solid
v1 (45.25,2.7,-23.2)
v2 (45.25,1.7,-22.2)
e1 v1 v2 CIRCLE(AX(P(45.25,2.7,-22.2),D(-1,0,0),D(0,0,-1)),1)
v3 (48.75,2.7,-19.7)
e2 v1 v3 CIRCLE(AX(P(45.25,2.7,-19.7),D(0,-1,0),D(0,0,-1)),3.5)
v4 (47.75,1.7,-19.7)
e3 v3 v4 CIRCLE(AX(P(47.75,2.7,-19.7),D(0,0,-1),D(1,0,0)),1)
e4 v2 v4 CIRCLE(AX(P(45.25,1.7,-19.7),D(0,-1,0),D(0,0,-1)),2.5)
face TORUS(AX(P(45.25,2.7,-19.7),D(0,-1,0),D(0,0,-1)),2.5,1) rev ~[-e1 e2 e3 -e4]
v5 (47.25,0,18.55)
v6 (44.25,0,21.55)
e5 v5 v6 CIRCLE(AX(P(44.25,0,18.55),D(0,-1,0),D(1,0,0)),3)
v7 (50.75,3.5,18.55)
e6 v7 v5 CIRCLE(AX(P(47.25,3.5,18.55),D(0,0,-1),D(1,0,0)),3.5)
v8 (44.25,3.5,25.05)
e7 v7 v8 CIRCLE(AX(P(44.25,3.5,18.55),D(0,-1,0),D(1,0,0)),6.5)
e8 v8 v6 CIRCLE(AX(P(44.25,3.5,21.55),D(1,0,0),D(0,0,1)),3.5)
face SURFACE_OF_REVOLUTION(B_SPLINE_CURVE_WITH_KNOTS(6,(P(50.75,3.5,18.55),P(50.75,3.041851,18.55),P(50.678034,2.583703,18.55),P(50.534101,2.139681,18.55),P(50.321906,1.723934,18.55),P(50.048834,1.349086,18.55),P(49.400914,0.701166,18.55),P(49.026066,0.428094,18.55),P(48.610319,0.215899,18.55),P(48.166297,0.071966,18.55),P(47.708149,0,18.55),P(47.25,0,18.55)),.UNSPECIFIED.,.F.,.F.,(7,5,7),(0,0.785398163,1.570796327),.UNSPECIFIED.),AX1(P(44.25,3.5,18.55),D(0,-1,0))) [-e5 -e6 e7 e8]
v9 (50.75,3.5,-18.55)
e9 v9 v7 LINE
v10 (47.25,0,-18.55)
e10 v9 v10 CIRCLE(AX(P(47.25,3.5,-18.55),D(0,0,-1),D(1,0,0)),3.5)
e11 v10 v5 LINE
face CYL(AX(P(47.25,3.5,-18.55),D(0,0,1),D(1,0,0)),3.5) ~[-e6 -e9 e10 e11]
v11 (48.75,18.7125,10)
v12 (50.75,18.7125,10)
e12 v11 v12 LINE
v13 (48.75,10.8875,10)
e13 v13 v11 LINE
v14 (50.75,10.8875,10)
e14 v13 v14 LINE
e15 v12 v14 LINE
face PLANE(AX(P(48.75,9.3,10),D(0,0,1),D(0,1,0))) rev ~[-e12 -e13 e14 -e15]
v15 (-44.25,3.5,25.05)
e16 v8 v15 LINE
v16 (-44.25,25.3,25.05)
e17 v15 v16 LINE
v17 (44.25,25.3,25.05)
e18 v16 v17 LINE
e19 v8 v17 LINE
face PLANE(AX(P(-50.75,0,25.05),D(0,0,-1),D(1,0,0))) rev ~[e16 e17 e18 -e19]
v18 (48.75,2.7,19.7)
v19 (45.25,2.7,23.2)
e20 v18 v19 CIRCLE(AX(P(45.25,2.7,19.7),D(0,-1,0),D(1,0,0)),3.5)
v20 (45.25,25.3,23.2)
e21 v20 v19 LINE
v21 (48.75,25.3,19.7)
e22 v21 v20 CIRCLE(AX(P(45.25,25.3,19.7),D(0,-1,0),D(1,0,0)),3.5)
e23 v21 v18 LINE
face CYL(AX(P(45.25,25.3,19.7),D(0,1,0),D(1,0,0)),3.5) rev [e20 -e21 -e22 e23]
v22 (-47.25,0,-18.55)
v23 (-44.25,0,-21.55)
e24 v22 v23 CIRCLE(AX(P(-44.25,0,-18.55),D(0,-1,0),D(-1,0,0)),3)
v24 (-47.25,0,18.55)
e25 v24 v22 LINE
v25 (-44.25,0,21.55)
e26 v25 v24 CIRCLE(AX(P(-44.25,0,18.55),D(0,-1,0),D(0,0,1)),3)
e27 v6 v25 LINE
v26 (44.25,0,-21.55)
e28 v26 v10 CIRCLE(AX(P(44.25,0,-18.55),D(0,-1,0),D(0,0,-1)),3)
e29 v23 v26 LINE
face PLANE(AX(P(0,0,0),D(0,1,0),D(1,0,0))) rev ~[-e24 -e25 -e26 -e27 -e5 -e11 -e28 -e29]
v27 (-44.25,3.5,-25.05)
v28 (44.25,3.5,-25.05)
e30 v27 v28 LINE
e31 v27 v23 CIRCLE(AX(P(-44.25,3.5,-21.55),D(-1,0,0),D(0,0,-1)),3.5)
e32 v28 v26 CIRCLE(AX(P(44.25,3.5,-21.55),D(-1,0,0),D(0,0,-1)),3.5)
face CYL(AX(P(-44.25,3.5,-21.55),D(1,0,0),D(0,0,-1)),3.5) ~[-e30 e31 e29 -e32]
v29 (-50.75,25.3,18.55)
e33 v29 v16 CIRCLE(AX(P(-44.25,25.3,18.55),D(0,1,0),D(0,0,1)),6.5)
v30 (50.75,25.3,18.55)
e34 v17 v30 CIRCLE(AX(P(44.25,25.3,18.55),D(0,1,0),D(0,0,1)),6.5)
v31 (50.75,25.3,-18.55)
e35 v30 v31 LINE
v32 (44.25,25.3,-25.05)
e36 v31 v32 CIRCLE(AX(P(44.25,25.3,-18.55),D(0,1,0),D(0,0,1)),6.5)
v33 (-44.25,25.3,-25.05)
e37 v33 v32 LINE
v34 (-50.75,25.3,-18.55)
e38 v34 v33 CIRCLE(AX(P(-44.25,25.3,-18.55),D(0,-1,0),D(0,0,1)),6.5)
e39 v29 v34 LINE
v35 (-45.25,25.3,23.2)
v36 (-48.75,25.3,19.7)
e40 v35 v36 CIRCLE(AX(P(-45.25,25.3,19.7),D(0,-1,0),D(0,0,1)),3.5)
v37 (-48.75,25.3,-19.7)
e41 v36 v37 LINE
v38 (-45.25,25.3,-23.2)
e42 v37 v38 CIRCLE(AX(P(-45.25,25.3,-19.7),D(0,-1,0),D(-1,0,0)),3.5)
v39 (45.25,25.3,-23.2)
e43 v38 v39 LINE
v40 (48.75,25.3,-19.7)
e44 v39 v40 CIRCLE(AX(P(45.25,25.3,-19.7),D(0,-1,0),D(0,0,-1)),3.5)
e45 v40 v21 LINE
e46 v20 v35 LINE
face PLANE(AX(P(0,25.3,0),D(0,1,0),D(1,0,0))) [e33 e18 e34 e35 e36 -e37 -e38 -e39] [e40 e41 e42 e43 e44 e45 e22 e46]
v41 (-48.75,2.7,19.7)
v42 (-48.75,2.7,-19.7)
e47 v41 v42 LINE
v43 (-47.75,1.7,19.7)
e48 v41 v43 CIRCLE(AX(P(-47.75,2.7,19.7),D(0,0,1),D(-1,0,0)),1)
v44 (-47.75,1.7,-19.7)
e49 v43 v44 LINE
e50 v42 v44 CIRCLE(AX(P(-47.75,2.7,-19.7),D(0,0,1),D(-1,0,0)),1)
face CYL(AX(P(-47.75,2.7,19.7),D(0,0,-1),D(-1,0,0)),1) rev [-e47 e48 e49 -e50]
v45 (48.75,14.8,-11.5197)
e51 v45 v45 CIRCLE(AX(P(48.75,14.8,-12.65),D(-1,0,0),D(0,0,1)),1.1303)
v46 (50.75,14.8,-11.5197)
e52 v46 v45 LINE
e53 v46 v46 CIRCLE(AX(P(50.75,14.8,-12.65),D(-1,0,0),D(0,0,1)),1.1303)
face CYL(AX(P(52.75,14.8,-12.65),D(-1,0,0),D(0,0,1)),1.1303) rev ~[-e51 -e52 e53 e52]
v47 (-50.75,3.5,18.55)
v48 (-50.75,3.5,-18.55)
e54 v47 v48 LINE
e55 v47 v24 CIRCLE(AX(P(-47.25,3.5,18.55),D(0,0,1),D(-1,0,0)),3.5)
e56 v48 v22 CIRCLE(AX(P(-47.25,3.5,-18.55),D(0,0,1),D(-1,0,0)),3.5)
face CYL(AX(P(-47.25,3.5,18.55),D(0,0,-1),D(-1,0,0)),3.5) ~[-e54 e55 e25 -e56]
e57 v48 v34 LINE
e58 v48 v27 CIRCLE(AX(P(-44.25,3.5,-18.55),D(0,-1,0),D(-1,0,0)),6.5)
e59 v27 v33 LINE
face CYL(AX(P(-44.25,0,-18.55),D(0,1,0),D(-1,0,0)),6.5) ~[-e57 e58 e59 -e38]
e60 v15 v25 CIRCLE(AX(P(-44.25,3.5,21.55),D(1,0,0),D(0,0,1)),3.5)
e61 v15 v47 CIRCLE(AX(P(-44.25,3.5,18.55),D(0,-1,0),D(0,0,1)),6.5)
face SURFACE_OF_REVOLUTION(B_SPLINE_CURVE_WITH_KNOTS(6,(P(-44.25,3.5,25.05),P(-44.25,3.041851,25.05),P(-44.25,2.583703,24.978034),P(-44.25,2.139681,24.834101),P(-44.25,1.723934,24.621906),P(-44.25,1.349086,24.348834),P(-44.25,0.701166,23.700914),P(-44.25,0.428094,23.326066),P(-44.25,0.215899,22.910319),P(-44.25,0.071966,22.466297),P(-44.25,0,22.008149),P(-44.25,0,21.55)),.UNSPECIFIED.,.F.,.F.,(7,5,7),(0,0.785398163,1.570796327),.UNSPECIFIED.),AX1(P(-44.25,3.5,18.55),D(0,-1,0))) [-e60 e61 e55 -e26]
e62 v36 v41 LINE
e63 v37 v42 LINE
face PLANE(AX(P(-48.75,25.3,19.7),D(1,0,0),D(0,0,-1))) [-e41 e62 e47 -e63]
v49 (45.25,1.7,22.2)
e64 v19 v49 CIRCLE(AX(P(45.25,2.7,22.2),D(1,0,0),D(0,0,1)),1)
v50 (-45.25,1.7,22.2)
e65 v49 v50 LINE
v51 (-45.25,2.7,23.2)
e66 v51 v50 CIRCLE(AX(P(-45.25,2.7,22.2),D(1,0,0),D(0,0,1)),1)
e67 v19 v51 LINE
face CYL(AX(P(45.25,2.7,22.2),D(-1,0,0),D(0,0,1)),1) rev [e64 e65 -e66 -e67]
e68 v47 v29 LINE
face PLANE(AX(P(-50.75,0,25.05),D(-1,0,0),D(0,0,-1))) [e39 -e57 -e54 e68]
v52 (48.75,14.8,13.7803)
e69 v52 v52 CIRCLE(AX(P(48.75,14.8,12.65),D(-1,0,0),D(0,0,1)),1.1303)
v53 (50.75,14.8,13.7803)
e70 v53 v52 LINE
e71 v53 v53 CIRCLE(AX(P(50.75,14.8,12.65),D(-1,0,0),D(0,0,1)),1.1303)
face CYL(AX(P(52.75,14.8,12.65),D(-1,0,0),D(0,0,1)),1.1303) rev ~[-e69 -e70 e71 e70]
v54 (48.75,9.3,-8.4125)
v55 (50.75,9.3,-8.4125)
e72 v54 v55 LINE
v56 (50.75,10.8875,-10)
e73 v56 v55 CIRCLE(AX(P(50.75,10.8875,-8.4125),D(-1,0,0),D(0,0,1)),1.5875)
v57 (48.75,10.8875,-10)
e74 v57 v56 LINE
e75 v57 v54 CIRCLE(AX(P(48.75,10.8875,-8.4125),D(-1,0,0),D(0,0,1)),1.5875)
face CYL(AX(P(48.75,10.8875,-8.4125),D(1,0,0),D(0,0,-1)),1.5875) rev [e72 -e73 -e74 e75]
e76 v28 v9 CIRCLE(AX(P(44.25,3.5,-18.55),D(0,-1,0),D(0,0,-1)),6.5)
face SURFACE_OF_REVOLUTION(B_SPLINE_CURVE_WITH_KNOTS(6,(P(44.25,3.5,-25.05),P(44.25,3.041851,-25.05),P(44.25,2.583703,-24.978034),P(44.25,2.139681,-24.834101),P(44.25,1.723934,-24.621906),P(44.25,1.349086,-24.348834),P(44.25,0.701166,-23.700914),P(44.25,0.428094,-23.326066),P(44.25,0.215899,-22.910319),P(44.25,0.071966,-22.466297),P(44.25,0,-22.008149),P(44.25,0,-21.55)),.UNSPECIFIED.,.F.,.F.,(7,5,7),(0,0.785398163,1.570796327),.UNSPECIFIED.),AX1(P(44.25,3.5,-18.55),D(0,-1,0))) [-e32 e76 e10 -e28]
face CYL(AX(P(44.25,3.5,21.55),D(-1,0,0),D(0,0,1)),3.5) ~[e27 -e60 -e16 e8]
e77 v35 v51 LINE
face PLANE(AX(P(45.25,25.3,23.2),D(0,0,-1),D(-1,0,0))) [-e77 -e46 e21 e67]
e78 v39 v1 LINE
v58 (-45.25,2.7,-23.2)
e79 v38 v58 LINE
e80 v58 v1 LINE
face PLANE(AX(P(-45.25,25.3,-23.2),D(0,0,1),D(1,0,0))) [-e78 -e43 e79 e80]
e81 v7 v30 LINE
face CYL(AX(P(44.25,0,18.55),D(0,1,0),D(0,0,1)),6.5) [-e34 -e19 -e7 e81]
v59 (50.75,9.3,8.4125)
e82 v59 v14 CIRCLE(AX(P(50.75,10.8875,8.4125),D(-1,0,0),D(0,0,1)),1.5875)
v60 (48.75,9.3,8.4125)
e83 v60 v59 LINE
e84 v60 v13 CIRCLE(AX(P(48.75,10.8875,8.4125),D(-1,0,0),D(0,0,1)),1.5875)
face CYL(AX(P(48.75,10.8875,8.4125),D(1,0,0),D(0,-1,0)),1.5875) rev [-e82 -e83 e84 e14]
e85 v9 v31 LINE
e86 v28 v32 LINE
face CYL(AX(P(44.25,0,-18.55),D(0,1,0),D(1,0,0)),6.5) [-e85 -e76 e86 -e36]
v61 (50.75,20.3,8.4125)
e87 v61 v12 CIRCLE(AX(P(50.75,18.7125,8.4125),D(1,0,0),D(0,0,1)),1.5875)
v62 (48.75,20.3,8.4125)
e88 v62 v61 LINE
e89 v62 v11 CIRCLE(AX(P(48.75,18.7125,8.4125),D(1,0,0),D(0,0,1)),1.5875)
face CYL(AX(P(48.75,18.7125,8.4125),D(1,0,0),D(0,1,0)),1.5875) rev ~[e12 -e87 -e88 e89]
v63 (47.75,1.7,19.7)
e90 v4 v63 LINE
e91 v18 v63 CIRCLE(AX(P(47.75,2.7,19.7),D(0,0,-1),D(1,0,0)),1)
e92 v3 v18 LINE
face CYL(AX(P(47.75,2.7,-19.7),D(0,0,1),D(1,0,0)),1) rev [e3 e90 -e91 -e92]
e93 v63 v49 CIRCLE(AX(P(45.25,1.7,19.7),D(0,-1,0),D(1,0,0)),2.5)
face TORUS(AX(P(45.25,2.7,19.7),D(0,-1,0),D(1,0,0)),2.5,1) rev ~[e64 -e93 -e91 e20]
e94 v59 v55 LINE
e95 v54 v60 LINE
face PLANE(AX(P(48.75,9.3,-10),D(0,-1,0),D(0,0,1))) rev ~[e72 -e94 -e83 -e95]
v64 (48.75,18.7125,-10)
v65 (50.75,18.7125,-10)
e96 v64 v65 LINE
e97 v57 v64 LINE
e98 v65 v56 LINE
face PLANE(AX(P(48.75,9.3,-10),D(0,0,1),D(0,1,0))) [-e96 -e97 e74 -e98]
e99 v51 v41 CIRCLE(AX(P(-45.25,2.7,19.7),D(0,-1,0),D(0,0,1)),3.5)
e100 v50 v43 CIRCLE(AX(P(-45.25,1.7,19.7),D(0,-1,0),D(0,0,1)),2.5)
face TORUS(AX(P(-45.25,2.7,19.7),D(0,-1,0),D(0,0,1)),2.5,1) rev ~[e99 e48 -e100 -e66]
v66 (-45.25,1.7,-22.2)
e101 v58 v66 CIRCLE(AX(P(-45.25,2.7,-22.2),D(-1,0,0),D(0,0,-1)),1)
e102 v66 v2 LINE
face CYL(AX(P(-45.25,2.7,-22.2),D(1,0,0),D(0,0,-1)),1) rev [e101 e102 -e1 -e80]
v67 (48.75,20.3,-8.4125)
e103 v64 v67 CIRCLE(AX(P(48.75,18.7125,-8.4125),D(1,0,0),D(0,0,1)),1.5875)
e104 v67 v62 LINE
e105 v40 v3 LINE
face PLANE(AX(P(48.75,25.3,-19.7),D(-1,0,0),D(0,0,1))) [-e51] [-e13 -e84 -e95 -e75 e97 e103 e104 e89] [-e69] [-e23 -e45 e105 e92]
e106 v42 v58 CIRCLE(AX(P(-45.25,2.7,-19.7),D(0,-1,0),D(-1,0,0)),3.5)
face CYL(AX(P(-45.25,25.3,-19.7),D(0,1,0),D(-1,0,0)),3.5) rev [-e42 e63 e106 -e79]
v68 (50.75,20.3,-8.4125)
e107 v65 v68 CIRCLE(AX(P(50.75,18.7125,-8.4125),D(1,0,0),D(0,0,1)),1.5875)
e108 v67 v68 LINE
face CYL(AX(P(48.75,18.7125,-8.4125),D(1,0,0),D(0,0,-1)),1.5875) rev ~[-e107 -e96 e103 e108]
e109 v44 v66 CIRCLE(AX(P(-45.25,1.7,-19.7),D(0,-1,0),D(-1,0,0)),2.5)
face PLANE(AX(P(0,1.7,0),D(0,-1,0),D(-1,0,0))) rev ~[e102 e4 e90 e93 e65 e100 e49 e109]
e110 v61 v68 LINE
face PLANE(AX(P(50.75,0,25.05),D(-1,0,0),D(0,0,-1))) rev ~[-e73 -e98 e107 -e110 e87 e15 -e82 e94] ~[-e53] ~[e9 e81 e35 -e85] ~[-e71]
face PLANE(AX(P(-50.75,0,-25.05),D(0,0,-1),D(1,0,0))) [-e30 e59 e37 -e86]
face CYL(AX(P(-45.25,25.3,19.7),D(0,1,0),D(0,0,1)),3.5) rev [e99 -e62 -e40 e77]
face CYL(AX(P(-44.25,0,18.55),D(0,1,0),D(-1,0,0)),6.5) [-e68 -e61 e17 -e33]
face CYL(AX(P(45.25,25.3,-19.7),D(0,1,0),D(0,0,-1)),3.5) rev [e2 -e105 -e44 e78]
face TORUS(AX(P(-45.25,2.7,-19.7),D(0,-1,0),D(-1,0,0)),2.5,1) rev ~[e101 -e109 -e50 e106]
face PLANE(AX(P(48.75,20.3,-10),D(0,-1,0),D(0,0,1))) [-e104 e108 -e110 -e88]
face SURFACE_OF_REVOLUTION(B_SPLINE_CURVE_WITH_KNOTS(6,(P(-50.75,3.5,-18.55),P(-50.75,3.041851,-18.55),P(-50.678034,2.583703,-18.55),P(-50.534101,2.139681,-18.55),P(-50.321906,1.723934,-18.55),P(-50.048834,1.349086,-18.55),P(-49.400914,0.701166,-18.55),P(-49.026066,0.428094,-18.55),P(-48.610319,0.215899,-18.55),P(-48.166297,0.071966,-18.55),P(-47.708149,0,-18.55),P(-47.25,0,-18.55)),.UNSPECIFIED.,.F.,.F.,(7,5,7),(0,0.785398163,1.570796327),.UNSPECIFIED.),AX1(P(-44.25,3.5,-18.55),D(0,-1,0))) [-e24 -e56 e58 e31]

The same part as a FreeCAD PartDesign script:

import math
import FreeCAD as App
import Part
import Sketcher

V = App.Vector
Q = App.Units.Quantity


def edges_at(feature, points):
    """Names of the edges that pass closest to the given points."""
    edges = feature.Shape.Edges
    near = lambda p: min(range(len(edges)), key=lambda i: edges[i].distToShape(Part.Vertex(*p))[0])
    return sorted({f"Edge{near(p) + 1}" for p in points})


def add_polygon(sketch, points):
    """Adds a closed chain of lines whose ends are joined by coincident constraints."""
    first, n = sketch.GeometryCount, len(points)
    for a, b in zip(points, points[1:] + points[:1]):
        sketch.addGeometry(Part.LineSegment(App.Vector(*a, 0), App.Vector(*b, 0)), False)
    for i in range(n):
        sketch.addConstraint(Sketcher.Constraint("Coincident", first + i, 2, first + (i + 1) % n, 1))

doc = App.newDocument("Part")
body = doc.addObject("PartDesign::Body", "Body")

sketch1 = body.newObject("Sketcher::SketchObject", "Sketch")
sketch1.AttachmentSupport = (doc.getObject("XZ_Plane"), [""])
sketch1.MapMode = "FlatFace"
add_polygon(sketch1, [(-51, -25), (-51, 25), (51, 25), (51, -25)])
sketch1.addConstraint([
    Sketcher.Constraint("Vertical", 0),
    Sketcher.Constraint("Horizontal", 1),
    Sketcher.Constraint("Vertical", 2),
    Sketcher.Constraint("Horizontal", 3),
    Sketcher.Constraint("Symmetric", 0, 2, 2, 2, -1, 1),
    Sketcher.Constraint("DistanceX", 1, 1, 1, 2, Q("101.5 mm")),
    Sketcher.Constraint("DistanceY", 0, 1, 0, 2, Q("50.1 mm")),
])
pad1 = body.newObject("PartDesign::Pad", "Pad")
pad1.Profile = sketch1
pad1.Length = 25.3
pad1.Reversed = True
doc.recompute()

fillet = body.newObject("PartDesign::Fillet", "Fillet")
fillet.Base = (pad1, edges_at(pad1, [
    (50.75, 12.65, 25.05),
    (-50.75, 12.65, 25.05),
    (-50.75, 12.65, -25.05),
    (50.75, 12.65, -25.05),
]))
fillet.Radius = 6.5
doc.recompute()

fillet2 = body.newObject("PartDesign::Fillet", "Fillet001")
fillet2.Base = (fillet, edges_at(fillet, [
    (-50.75, 0, 0),
    (50.75, 0, 0),
    (0, 0, 25.05),
    (0, 0, -25.05),
    (48.846, 0, 23.146),
    (-48.846, 0, 23.146),
    (48.846, 0, -23.146),
    (-48.846, 0, -23.146),
]))
fillet2.Radius = 3.5

sketch2 = body.newObject("Sketcher::SketchObject", "Sketch001")
sketch2.AttachmentSupport = (doc.getObject("XZ_Plane"), [""])
sketch2.MapMode = "FlatFace"
sketch2.AttachmentOffset = App.Placement(V(0, 0, -25.3), App.Rotation())
sketch2.addGeometry([
    Part.LineSegment(V(45.2, -23.2, 0), V(-45.2, -23.2, 0)),
    Part.ArcOfCircle(Part.Circle(V(-45.2, -19.7, 0), V(0, 0, 1), 3.5), math.radians(-180), math.radians(-90)),
    Part.LineSegment(V(-48.8, -19.7, 0), V(-48.8, 19.7, 0)),
    Part.ArcOfCircle(Part.Circle(V(-45.2, 19.7, 0), V(0, 0, 1), 3.5), math.radians(90), math.radians(180)),
    Part.LineSegment(V(-45.2, 23.2, 0), V(45.2, 23.2, 0)),
    Part.ArcOfCircle(Part.Circle(V(45.2, 19.7, 0), V(0, 0, 1), 3.5), math.radians(0), math.radians(90)),
    Part.LineSegment(V(48.8, 19.7, 0), V(48.8, -19.7, 0)),
    Part.ArcOfCircle(Part.Circle(V(45.2, -19.7, 0), V(0, 0, 1), 3.5), math.radians(-90), math.radians(0)),
], False)
sketch2.addConstraint([
    Sketcher.Constraint("Tangent", 0, 2, 1, 2),
    Sketcher.Constraint("Tangent", 1, 1, 2, 1),
    Sketcher.Constraint("Tangent", 2, 2, 3, 2),
    Sketcher.Constraint("Tangent", 3, 1, 4, 1),
    Sketcher.Constraint("Tangent", 4, 2, 5, 2),
    Sketcher.Constraint("Tangent", 5, 1, 6, 1),
    Sketcher.Constraint("Tangent", 6, 2, 7, 2),
    Sketcher.Constraint("Tangent", 7, 1, 0, 1),
    Sketcher.Constraint("Horizontal", 0),
    Sketcher.Constraint("Vertical", 2),
    Sketcher.Constraint("Horizontal", 4),
    Sketcher.Constraint("Vertical", 6),
    Sketcher.Constraint("Equal", 1, 3),
    Sketcher.Constraint("Equal", 3, 5),
    Sketcher.Constraint("Equal", 5, 7),
    Sketcher.Constraint("Symmetric", 1, 3, 5, 3, -1, 1),
    Sketcher.Constraint("Radius", 1, Q("3.5 mm")),
    Sketcher.Constraint("DistanceX", 0, 2, 0, 1, Q("90.5 mm")),
    Sketcher.Constraint("DistanceY", 2, 1, 2, 2, Q("39.4 mm")),
])
pocket1 = body.newObject("PartDesign::Pocket", "Pocket")
pocket1.Profile = sketch2
pocket1.Length = 23.6
pocket1.Reversed = True
doc.recompute()

fillet3 = body.newObject("PartDesign::Fillet", "Fillet002")
fillet3.Base = (pocket1, edges_at(pocket1, [
    (47.725, 1.7, -22.175),
    (48.75, 1.7, 0),
    (47.725, 1.7, 22.175),
    (0, 1.7, 23.2),
    (-47.725, 1.7, 22.175),
    (-48.75, 1.7, 0),
    (-47.725, 1.7, -22.175),
    (0, 1.7, -23.2),
]))
fillet3.Radius = 1

sketch3 = body.newObject("Sketcher::SketchObject", "Sketch002")
sketch3.AttachmentSupport = (doc.getObject("YZ_Plane"), [""])
sketch3.MapMode = "FlatFace"
sketch3.AttachmentOffset = App.Placement(V(0, 0, 48.75), App.Rotation())
add_polygon(sketch3, [(20, -10), (9, -10), (9, 10), (20, 10)])
sketch3.addConstraint([
    Sketcher.Constraint("Horizontal", 0),
    Sketcher.Constraint("Vertical", 1),
    Sketcher.Constraint("Horizontal", 2),
    Sketcher.Constraint("Vertical", 3),
    Sketcher.Constraint("DistanceX", 0, 2, 0, 1, Q("11 mm")),
    Sketcher.Constraint("DistanceY", 1, 1, 1, 2, Q("20 mm")),
    Sketcher.Constraint("DistanceY", 0, 2, -1, 1, Q("10 mm")),
    Sketcher.Constraint("DistanceX", -1, 1, 0, 2, Q("9.3 mm")),
])
pocket2 = body.newObject("PartDesign::Pocket", "Pocket001")
pocket2.Profile = sketch3
pocket2.Type = "UpToFirst"
pocket2.Reversed = True

sketch4 = body.newObject("Sketcher::SketchObject", "Sketch003")
sketch4.AttachmentSupport = (doc.getObject("YZ_Plane"), [""])
sketch4.MapMode = "FlatFace"
sketch4.AttachmentOffset = App.Placement(V(0, 0, 50.75), App.Rotation())
sketch4.addGeometry([
    Part.Circle(V(14.8, 12.7, 0), V(0, 0, 1), 1.1),
    Part.Circle(V(14.8, -12.7, 0), V(0, 0, 1), 1.1),
], False)
sketch4.addConstraint([
    Sketcher.Constraint("Equal", 0, 1),
    Sketcher.Constraint("Symmetric", 0, 3, 1, 3, -1),
    Sketcher.Constraint("Diameter", 0, Q("2.2606 mm")),
    Sketcher.Constraint("DistanceX", -1, 1, 0, 3, Q("14.8 mm")),
    Sketcher.Constraint("DistanceY", 1, 3, 0, 3, Q("25.3 mm")),
])
doc.recompute()
hole = body.newObject("PartDesign::Hole", "Hole")
hole.Profile = sketch4
hole.ThreadType = "None"
hole.Diameter = 2.2606
hole.DepthType = "Dimension"
hole.Depth = 2
hole.DrillPoint = "Flat"
doc.recompute()

fillet4 = body.newObject("PartDesign::Fillet", "Fillet003")
fillet4.Base = (hole, edges_at(hole, [
    (49.75, 20.3, -10),
    (49.75, 20.3, 10),
    (49.75, 9.3, 10),
    (49.75, 9.3, -10),
]))
fillet4.Radius = 1.5875

doc.recompute()
